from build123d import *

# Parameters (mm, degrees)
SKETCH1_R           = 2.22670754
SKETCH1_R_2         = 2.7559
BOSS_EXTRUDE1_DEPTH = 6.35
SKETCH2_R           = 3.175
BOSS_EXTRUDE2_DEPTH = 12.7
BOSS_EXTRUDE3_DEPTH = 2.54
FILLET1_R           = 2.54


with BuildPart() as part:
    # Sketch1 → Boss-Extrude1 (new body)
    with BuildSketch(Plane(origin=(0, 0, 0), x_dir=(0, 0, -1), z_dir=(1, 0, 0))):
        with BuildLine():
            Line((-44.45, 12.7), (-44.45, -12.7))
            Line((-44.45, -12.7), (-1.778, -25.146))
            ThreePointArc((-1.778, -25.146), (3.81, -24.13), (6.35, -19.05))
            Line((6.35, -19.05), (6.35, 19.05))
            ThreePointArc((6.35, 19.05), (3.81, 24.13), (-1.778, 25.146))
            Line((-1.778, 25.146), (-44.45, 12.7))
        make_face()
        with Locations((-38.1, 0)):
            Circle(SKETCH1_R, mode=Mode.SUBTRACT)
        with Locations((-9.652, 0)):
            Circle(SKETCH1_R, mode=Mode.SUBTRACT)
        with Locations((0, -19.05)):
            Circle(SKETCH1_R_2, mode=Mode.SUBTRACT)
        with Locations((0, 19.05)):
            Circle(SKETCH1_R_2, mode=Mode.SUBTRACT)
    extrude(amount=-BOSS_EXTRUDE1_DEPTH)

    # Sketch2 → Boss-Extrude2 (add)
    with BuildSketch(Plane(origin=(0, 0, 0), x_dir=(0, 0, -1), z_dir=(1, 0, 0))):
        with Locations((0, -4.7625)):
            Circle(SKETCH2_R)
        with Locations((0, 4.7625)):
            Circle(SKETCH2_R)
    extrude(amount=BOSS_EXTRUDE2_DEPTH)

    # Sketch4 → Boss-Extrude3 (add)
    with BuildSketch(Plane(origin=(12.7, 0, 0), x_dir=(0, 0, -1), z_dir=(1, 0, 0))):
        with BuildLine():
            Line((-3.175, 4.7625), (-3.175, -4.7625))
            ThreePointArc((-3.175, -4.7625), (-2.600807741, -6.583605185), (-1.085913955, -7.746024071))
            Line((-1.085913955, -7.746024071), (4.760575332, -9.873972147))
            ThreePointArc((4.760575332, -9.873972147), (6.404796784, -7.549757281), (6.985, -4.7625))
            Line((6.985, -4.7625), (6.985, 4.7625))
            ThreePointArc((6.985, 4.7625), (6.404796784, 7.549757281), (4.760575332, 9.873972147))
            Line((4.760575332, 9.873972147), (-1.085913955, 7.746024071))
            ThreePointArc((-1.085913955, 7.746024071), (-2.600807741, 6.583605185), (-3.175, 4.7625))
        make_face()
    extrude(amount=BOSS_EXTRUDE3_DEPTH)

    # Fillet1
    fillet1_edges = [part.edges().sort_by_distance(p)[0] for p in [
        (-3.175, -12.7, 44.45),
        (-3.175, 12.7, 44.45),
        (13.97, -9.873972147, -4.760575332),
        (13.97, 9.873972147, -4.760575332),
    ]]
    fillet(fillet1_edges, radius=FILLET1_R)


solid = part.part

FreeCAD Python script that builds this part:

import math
import FreeCAD as App
import Part
import Sketcher

V = App.Vector
Q = App.Units.Quantity


def edges_at(feature, points):
    """Names of the edges that pass closest to the given points."""
    edges = feature.Shape.Edges
    near = lambda p: min(range(len(edges)), key=lambda i: edges[i].distToShape(Part.Vertex(*p))[0])
    return sorted({f"Edge{near(p) + 1}" for p in points})

doc = App.newDocument("Part")
body = doc.addObject("PartDesign::Body", "Body")

# Sketch on YZ plane
sketch1 = doc.addObject("Sketcher::SketchObject", "Sketch")
body.addObject(sketch1)
sketch1.AttachmentSupport = (doc.YZ_Plane, [""])
sketch1.MapMode = "FlatFace"
sketch1.addGeometry(Part.LineSegment(V(12.7, 44.5, 0), V(-12.7, 44.5, 0)), False)
sketch1.addGeometry(Part.LineSegment(V(-12.7, 44.5, 0), V(-25.1, 1.8, 0)), False)
sketch1.addGeometry(Part.ArcOfCircle(Part.Circle(V(-19.1, 0, 0), V(0, 0, 1), 6.3), math.radians(164), math.radians(270)), False)
sketch1.addGeometry(Part.LineSegment(V(-19.1, -6.3, 0), V(19.1, -6.3, 0)), False)
sketch1.addGeometry(Part.ArcOfCircle(Part.Circle(V(19.1, 0, 0), V(0, 0, 1), 6.3), math.radians(-90), math.radians(16)), False)
sketch1.addGeometry(Part.LineSegment(V(25.1, 1.8, 0), V(12.7, 44.5, 0)), False)
sketch1.addGeometry(Part.Circle(V(0, 38.1, 0), V(0, 0, 1), 2.2), False)
sketch1.addGeometry(Part.Circle(V(-19.1, 0, 0), V(0, 0, 1), 2.8), False)
sketch1.addGeometry(Part.Circle(V(0, 9.7, 0), V(0, 0, 1), 2.2), False)
sketch1.addGeometry(Part.Circle(V(19.1, 0, 0), V(0, 0, 1), 2.8), False)
sketch1.addConstraint(Sketcher.Constraint("Coincident", 0, 2, 1, 1))
sketch1.addConstraint(Sketcher.Constraint("Tangent", 1, 2, 2, 1))
sketch1.addConstraint(Sketcher.Constraint("Tangent", 2, 2, 3, 1))
sketch1.addConstraint(Sketcher.Constraint("Tangent", 3, 2, 4, 1))
sketch1.addConstraint(Sketcher.Constraint("Tangent", 4, 2, 5, 1))
sketch1.addConstraint(Sketcher.Constraint("Coincident", 5, 2, 0, 1))
sketch1.addConstraint(Sketcher.Constraint("Horizontal", 0))
sketch1.addConstraint(Sketcher.Constraint("Horizontal", 3))
sketch1.addConstraint(Sketcher.Constraint("Coincident", 7, 3, 2, 3))
sketch1.addConstraint(Sketcher.Constraint("Coincident", 9, 3, 4, 3))
sketch1.addConstraint(Sketcher.Constraint("Equal", 2, 4))
sketch1.addConstraint(Sketcher.Constraint("Equal", 6, 8))
sketch1.addConstraint(Sketcher.Constraint("Equal", 7, 9))
sketch1.addConstraint(Sketcher.Constraint("Symmetric", 2, 3, 4, 3, -1, 1))
sketch1.addConstraint(Sketcher.Constraint("PointOnObject", 6, 3, -2))
sketch1.addConstraint(Sketcher.Constraint("PointOnObject", 8, 3, -2))
sketch1.addConstraint(Sketcher.Constraint("Horizontal", 1, 2, 4, 2))
sketch1.addConstraint(Sketcher.Constraint("DistanceX", 0, 2, 0, 1, Q("1 in")))
sketch1.addConstraint(Sketcher.Constraint("Radius", 2, Q("0.25 in")))
sketch1.addConstraint(Sketcher.Constraint("Diameter", 7, Q("0.217 in")))
sketch1.addConstraint(Sketcher.Constraint("DistanceX", 3, 1, 3, 2, Q("1.5 in")))
sketch1.addConstraint(Sketcher.Constraint("DistanceY", -1, 1, 6, 3, Q("1.5 in")))
sketch1.addConstraint(Sketcher.Constraint("Distance", 1, Q("1.75 in")))
sketch1.addConstraint(Sketcher.Constraint("DistanceY", -1, 1, 8, 3, Q("0.38 in")))
sketch1.addConstraint(Sketcher.Constraint("Diameter", 6, 4.453415))
pad1 = doc.addObject("PartDesign::Pad", "Pad")
body.addObject(pad1)
pad1.Profile = sketch1
pad1.Length = Q("0.25 in")
pad1.Reversed = True

# Sketch on YZ plane
sketch2 = doc.addObject("Sketcher::SketchObject", "Sketch001")
body.addObject(sketch2)
sketch2.AttachmentSupport = (doc.YZ_Plane, [""])
sketch2.MapMode = "FlatFace"
sketch2.addGeometry(Part.Circle(V(-4.8, 0, 0), V(0, 0, 1), 3.2), False)
sketch2.addGeometry(Part.Circle(V(4.8, 0, 0), V(0, 0, 1), 3.2), False)
sketch2.addConstraint(Sketcher.Constraint("Equal", 0, 1))
sketch2.addConstraint(Sketcher.Constraint("Symmetric", 0, 3, 1, 3, -1, 1))
sketch2.addConstraint(Sketcher.Constraint("PointOnObject", 0, 3, -1))
sketch2.addConstraint(Sketcher.Constraint("Diameter", 0, Q("0.25 in")))
sketch2.addConstraint(Sketcher.Constraint("DistanceX", 0, 3, -1, 1, Q("0.1875 in")))
pad2 = doc.addObject("PartDesign::Pad", "Pad001")
body.addObject(pad2)
pad2.Profile = sketch2
pad2.Length = Q("0.5 in")

# Sketch on YZ plane
sketch3 = doc.addObject("Sketcher::SketchObject", "Sketch002")
body.addObject(sketch3)
sketch3.AttachmentSupport = (doc.YZ_Plane, [""])
sketch3.MapMode = "FlatFace"
sketch3.AttachmentOffset = App.Placement(V(0, 0, 0.5 * 25.4), App.Rotation())
sketch3.addGeometry(Part.LineSegment(V(4.8, 3.2, 0), V(-4.8, 3.2, 0)), False)
sketch3.addGeometry(Part.ArcOfCircle(Part.Circle(V(-4.8, 0, 0), V(0, 0, 1), 3.2), math.radians(90), math.radians(160)), False)
sketch3.addGeometry(Part.LineSegment(V(-7.7, 1.1, 0), V(-9.9, -4.8, 0)), False)
sketch3.addGeometry(Part.ArcOfCircle(Part.Circle(V(-4.8, 0, 0), V(0, 0, 1), 7), math.radians(-137), math.radians(-90)), False)
sketch3.addGeometry(Part.LineSegment(V(-4.8, -7, 0), V(4.8, -7, 0)), False)
sketch3.addGeometry(Part.ArcOfCircle(Part.Circle(V(4.8, 0, 0), V(0, 0, 1), 7), math.radians(-90), math.radians(-43)), False)
sketch3.addGeometry(Part.LineSegment(V(9.9, -4.8, 0), V(7.7, 1.1, 0)), False)
sketch3.addGeometry(Part.ArcOfCircle(Part.Circle(V(4.8, 0, 0), V(0, 0, 1), 3.2), math.radians(20), math.radians(90)), False)
sketch3.addConstraint(Sketcher.Constraint("Tangent", 0, 2, 1, 1))
sketch3.addConstraint(Sketcher.Constraint("Tangent", 1, 2, 2, 1))
sketch3.addConstraint(Sketcher.Constraint("Coincident", 2, 2, 3, 1))
sketch3.addConstraint(Sketcher.Constraint("Tangent", 3, 2, 4, 1))
sketch3.addConstraint(Sketcher.Constraint("Tangent", 4, 2, 5, 1))
sketch3.addConstraint(Sketcher.Constraint("Coincident", 5, 2, 6, 1))
sketch3.addConstraint(Sketcher.Constraint("Tangent", 6, 2, 7, 1))
sketch3.addConstraint(Sketcher.Constraint("Tangent", 7, 2, 0, 1))
sketch3.addConstraint(Sketcher.Constraint("Horizontal", 0))
sketch3.addConstraint(Sketcher.Constraint("Horizontal", 4))
sketch3.addConstraint(Sketcher.Constraint("Coincident", 3, 3, 1, 3))
sketch3.addConstraint(Sketcher.Constraint("Coincident", 7, 3, 5, 3))
sketch3.addConstraint(Sketcher.Constraint("Equal", 3, 5))
sketch3.addConstraint(Sketcher.Constraint("Symmetric", 1, 3, 5, 3, -1, 1))
sketch3.addConstraint(Sketcher.Constraint("Horizontal", 2, 2, 5, 2))
sketch3.addConstraint(Sketcher.Constraint("Angle", 2, Q("-110 deg")))
sketch3.addConstraint(Sketcher.Constraint("Radius", 1, Q("0.125 in")))
sketch3.addConstraint(Sketcher.Constraint("Radius", 3, Q("0.275 in")))
sketch3.addConstraint(Sketcher.Constraint("DistanceX", 0, 2, 0, 1, Q("0.375 in")))
pad3 = doc.addObject("PartDesign::Pad", "Pad002")
body.addObject(pad3)
pad3.Profile = sketch3
pad3.Length = Q("0.1 in")
doc.recompute()

fillet = doc.addObject("PartDesign::Fillet", "Fillet")
body.addObject(fillet)
fillet.Base = (pad3, edges_at(pad3, [
    (-3.175, -12.7, 44.45),
    (-3.175, 12.7, 44.45),
    (13.97, -9.874, -4.761),
    (13.97, 9.874, -4.761),
]))
fillet.Radius = Q("0.1 in")

doc.recompute()
